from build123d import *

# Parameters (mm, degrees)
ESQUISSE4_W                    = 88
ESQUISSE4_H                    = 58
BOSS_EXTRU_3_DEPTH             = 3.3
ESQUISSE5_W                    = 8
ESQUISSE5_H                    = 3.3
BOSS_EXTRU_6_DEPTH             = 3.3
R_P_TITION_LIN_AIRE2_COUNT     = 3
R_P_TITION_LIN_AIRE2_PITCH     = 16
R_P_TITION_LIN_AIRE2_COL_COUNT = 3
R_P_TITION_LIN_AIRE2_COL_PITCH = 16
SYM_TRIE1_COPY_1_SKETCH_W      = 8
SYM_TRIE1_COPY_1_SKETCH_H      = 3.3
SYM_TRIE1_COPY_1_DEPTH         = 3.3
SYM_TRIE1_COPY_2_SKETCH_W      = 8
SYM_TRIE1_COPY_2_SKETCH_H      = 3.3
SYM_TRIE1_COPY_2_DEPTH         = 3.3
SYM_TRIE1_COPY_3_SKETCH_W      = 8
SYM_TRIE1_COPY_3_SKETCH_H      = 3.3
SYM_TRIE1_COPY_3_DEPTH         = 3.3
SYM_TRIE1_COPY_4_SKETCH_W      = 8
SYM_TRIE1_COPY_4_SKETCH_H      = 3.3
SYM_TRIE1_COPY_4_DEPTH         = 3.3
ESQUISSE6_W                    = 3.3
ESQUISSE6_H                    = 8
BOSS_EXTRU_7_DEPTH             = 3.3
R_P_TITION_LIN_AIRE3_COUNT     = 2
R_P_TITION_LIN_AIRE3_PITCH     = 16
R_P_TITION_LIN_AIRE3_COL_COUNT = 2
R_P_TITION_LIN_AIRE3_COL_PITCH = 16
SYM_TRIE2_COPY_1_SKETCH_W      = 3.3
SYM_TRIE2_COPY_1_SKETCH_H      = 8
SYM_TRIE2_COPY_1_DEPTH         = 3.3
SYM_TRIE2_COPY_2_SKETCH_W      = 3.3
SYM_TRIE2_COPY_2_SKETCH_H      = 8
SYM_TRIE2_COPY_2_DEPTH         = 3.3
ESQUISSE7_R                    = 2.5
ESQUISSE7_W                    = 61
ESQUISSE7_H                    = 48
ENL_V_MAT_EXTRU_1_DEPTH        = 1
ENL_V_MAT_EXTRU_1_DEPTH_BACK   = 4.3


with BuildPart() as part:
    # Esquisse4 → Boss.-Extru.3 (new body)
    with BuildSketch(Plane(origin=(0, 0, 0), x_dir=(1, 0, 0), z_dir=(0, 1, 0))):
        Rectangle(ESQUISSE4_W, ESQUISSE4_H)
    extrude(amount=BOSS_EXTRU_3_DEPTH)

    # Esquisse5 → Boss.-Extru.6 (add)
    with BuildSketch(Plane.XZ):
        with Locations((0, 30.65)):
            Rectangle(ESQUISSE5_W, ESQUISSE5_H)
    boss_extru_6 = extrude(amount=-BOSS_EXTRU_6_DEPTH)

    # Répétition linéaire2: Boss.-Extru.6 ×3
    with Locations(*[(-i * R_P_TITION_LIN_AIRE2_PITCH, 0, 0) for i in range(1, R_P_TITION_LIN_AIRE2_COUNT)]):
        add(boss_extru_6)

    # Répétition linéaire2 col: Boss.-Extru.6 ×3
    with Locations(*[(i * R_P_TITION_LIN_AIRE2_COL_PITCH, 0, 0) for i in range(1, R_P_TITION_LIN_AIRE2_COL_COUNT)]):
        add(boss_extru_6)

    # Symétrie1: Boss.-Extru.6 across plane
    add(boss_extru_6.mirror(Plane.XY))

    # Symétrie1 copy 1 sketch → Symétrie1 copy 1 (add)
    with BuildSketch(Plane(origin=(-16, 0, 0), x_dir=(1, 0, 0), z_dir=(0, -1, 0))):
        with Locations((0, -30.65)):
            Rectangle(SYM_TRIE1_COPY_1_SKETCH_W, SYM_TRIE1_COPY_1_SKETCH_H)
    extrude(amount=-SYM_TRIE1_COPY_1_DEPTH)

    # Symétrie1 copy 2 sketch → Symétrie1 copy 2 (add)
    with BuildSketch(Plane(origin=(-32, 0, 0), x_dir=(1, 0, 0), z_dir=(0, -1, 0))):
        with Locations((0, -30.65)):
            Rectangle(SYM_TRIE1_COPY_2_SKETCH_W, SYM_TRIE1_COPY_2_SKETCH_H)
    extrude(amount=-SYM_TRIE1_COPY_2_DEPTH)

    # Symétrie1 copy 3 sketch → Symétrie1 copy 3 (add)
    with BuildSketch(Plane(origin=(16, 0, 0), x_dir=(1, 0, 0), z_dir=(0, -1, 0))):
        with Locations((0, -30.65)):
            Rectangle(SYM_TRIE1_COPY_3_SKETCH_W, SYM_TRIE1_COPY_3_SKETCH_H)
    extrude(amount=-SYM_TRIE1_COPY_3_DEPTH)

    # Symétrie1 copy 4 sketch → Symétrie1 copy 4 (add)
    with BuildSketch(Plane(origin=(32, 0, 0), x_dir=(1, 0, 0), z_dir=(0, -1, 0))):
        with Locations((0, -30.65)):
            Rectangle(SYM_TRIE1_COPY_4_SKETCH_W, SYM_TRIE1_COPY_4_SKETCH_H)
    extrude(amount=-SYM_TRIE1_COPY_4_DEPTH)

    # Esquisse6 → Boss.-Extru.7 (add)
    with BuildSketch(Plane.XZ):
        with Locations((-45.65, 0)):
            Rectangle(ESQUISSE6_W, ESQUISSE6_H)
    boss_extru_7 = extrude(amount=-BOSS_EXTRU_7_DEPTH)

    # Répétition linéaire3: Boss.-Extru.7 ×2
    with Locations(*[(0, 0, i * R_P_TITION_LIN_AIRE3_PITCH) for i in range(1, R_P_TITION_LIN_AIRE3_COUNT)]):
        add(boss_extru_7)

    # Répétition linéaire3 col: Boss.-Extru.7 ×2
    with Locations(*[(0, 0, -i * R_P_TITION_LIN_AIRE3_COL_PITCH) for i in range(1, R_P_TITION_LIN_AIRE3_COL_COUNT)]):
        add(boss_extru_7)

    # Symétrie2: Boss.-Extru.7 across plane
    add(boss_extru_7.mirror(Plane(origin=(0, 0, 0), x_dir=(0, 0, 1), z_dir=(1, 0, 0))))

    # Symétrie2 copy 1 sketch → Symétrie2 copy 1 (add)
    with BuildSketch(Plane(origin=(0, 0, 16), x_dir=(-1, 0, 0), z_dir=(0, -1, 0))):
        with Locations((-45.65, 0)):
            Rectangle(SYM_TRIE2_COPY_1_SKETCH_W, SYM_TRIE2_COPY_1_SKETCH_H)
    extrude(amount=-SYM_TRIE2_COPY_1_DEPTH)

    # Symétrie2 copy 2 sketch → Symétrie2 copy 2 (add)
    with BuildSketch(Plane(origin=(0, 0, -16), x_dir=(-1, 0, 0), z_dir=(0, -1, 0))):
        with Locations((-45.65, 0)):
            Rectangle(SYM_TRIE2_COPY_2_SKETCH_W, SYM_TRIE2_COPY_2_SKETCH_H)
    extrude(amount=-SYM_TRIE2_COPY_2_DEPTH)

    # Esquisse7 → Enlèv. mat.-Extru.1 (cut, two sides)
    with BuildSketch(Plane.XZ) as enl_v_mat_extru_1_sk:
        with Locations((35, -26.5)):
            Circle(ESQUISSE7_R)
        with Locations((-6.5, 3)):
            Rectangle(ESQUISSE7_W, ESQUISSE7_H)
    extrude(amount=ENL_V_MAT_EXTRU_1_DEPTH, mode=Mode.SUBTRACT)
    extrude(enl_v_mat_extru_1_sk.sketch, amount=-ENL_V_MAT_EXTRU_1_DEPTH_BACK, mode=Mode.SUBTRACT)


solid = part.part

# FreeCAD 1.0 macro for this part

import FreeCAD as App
import Part
import Sketcher
Q = App.Units.Quantity


def add_polygon(sketch, points):
    """Adds a closed chain of lines whose ends are joined by coincident constraints."""
    first, n = sketch.GeometryCount, len(points)
    for a, b in zip(points, points[1:] + points[:1]):
        sketch.addGeometry(Part.LineSegment(App.Vector(*a, 0), App.Vector(*b, 0)), False)
    for i in range(n):
        sketch.addConstraint(Sketcher.Constraint("Coincident", first + i, 2, first + (i + 1) % n, 1))

doc = App.newDocument("Part")
body = doc.addObject("PartDesign::Body", "Body")

# Sketch on XZ plane
sketch1 = body.newObject("Sketcher::SketchObject", "Sketch")
sketch1.AttachmentSupport = (doc.getObject("XZ_Plane"), [""])
sketch1.MapMode = "FlatFace"
add_polygon(sketch1, [(-44, -29), (-44, 29), (44, 29), (44, -29)])  # lines 0-3
sketch1.addConstraint(Sketcher.Constraint("Vertical", 0))
sketch1.addConstraint(Sketcher.Constraint("Horizontal", 1))
sketch1.addConstraint(Sketcher.Constraint("Vertical", 2))
sketch1.addConstraint(Sketcher.Constraint("Horizontal", 3))
sketch1.addConstraint(Sketcher.Constraint("Symmetric", 0, 2, 2, 2, -1, 1))
sketch1.addConstraint(Sketcher.Constraint("DistanceX", 1, 1, 1, 2, Q("88 mm")))
sketch1.addConstraint(Sketcher.Constraint("DistanceY", 0, 1, 0, 2, Q("58 mm")))
pad1 = body.newObject("PartDesign::Pad", "Pad")
pad1.Profile = sketch1
pad1.Length = 3.3
pad1.Reversed = True

# Sketch on XZ plane
sketch2 = body.newObject("Sketcher::SketchObject", "Sketch001")
sketch2.AttachmentSupport = (doc.getObject("XZ_Plane"), [""])
sketch2.MapMode = "FlatFace"
add_polygon(sketch2, [(-4, 32.3), (-4, 29), (4, 29), (4, 32.3)])  # lines 0-3
sketch2.addConstraint(Sketcher.Constraint("Vertical", 0))
sketch2.addConstraint(Sketcher.Constraint("Horizontal", 1))
sketch2.addConstraint(Sketcher.Constraint("Vertical", 2))
sketch2.addConstraint(Sketcher.Constraint("Horizontal", 3))
sketch2.addConstraint(Sketcher.Constraint("DistanceX", 1, 1, 1, 2, Q("8 mm")))
sketch2.addConstraint(Sketcher.Constraint("DistanceY", 0, 2, 0, 1, Q("3.3 mm")))
sketch2.addConstraint(Sketcher.Constraint("DistanceX", 0, 2, -1, 1, Q("4 mm")))
sketch2.addConstraint(Sketcher.Constraint("DistanceY", -1, 1, 0, 2, Q("29 mm")))
pad2 = body.newObject("PartDesign::Pad", "Pad001")
pad2.Profile = sketch2
pad2.Length = 3.3
pad2.Reversed = True
doc.recompute()

linearpattern = body.newObject("PartDesign::LinearPattern", "LinearPattern")
linearpattern.Originals = [pad2]
linearpattern.Direction = (doc.getObject("X_Axis"), [""])
linearpattern.Mode = "offset"
linearpattern.Offset = 16
linearpattern.Occurrences = 3
linearpattern.Reversed = True
body.Tip = linearpattern
doc.recompute()

linearpattern2 = body.newObject("PartDesign::LinearPattern", "LinearPattern001")
linearpattern2.Originals = [pad2]
linearpattern2.Direction = (doc.getObject("X_Axis"), [""])
linearpattern2.Mode = "offset"
linearpattern2.Offset = 16
linearpattern2.Occurrences = 3
body.Tip = linearpattern2
doc.recompute()

mirrored = body.newObject("PartDesign::Mirrored", "Mirrored")
mirrored.Originals = [pad2]
mirrored.MirrorPlane = (doc.getObject("XY_Plane"), [""])
body.Tip = mirrored

# Sketch on XZ plane
sketch3 = body.newObject("Sketcher::SketchObject", "Sketch002")
sketch3.AttachmentSupport = (doc.getObject("XZ_Plane"), [""])
sketch3.MapMode = "FlatFace"
add_polygon(sketch3, [(-20, -29), (-20, -32.3), (-12, -32.3), (-12, -29)])  # lines 0-3
sketch3.addConstraint(Sketcher.Constraint("Vertical", 0))
sketch3.addConstraint(Sketcher.Constraint("Horizontal", 1))
sketch3.addConstraint(Sketcher.Constraint("Vertical", 2))
sketch3.addConstraint(Sketcher.Constraint("Horizontal", 3))
sketch3.addConstraint(Sketcher.Constraint("DistanceX", 1, 1, 1, 2, Q("8 mm")))
sketch3.addConstraint(Sketcher.Constraint("DistanceY", 0, 2, 0, 1, Q("3.3 mm")))
sketch3.addConstraint(Sketcher.Constraint("DistanceX", 0, 2, -1, 1, Q("20 mm")))
sketch3.addConstraint(Sketcher.Constraint("DistanceY", 2, 2, -1, 1, Q("29 mm")))
pad3 = body.newObject("PartDesign::Pad", "Pad002")
pad3.Profile = sketch3
pad3.Length = 3.3
pad3.Reversed = True

# Sketch on XZ plane
sketch4 = body.newObject("Sketcher::SketchObject", "Sketch003")
sketch4.AttachmentSupport = (doc.getObject("XZ_Plane"), [""])
sketch4.MapMode = "FlatFace"
add_polygon(sketch4, [(-36, -29), (-36, -32.3), (-28, -32.3), (-28, -29)])  # lines 0-3
sketch4.addConstraint(Sketcher.Constraint("Vertical", 0))
sketch4.addConstraint(Sketcher.Constraint("Horizontal", 1))
sketch4.addConstraint(Sketcher.Constraint("Vertical", 2))
sketch4.addConstraint(Sketcher.Constraint("Horizontal", 3))
sketch4.addConstraint(Sketcher.Constraint("DistanceX", 1, 1, 1, 2, Q("8 mm")))
sketch4.addConstraint(Sketcher.Constraint("DistanceY", 0, 2, 0, 1, Q("3.3 mm")))
sketch4.addConstraint(Sketcher.Constraint("DistanceX", 0, 2, -1, 1, Q("36 mm")))
sketch4.addConstraint(Sketcher.Constraint("DistanceY", 2, 2, -1, 1, Q("29 mm")))
pad4 = body.newObject("PartDesign::Pad", "Pad003")
pad4.Profile = sketch4
pad4.Length = 3.3
pad4.Reversed = True

# Sketch on XZ plane
sketch5 = body.newObject("Sketcher::SketchObject", "Sketch004")
sketch5.AttachmentSupport = (doc.getObject("XZ_Plane"), [""])
sketch5.MapMode = "FlatFace"
add_polygon(sketch5, [(12, -29), (12, -32.3), (20, -32.3), (20, -29)])  # lines 0-3
sketch5.addConstraint(Sketcher.Constraint("Vertical", 0))
sketch5.addConstraint(Sketcher.Constraint("Horizontal", 1))
sketch5.addConstraint(Sketcher.Constraint("Vertical", 2))
sketch5.addConstraint(Sketcher.Constraint("Horizontal", 3))
sketch5.addConstraint(Sketcher.Constraint("DistanceX", 1, 1, 1, 2, Q("8 mm")))
sketch5.addConstraint(Sketcher.Constraint("DistanceY", 0, 2, 0, 1, Q("3.3 mm")))
sketch5.addConstraint(Sketcher.Constraint("DistanceX", -1, 1, 0, 2, Q("12 mm")))
sketch5.addConstraint(Sketcher.Constraint("DistanceY", 2, 2, -1, 1, Q("29 mm")))
pad5 = body.newObject("PartDesign::Pad", "Pad004")
pad5.Profile = sketch5
pad5.Length = 3.3
pad5.Reversed = True

# Sketch on XZ plane
sketch6 = body.newObject("Sketcher::SketchObject", "Sketch005")
sketch6.AttachmentSupport = (doc.getObject("XZ_Plane"), [""])
sketch6.MapMode = "FlatFace"
add_polygon(sketch6, [(28, -29), (28, -32.3), (36, -32.3), (36, -29)])  # lines 0-3
sketch6.addConstraint(Sketcher.Constraint("Vertical", 0))
sketch6.addConstraint(Sketcher.Constraint("Horizontal", 1))
sketch6.addConstraint(Sketcher.Constraint("Vertical", 2))
sketch6.addConstraint(Sketcher.Constraint("Horizontal", 3))
sketch6.addConstraint(Sketcher.Constraint("DistanceX", 1, 1, 1, 2, Q("8 mm")))
sketch6.addConstraint(Sketcher.Constraint("DistanceY", 0, 2, 0, 1, Q("3.3 mm")))
sketch6.addConstraint(Sketcher.Constraint("DistanceX", -1, 1, 0, 2, Q("28 mm")))
sketch6.addConstraint(Sketcher.Constraint("DistanceY", 2, 2, -1, 1, Q("29 mm")))
pad6 = body.newObject("PartDesign::Pad", "Pad005")
pad6.Profile = sketch6
pad6.Length = 3.3
pad6.Reversed = True

# Sketch on XZ plane
sketch7 = body.newObject("Sketcher::SketchObject", "Sketch006")
sketch7.AttachmentSupport = (doc.getObject("XZ_Plane"), [""])
sketch7.MapMode = "FlatFace"
add_polygon(sketch7, [(-47.3, 4), (-47.3, -4), (-44, -4), (-44, 4)])  # lines 0-3
sketch7.addConstraint(Sketcher.Constraint("Vertical", 0))
sketch7.addConstraint(Sketcher.Constraint("Horizontal", 1))
sketch7.addConstraint(Sketcher.Constraint("Vertical", 2))
sketch7.addConstraint(Sketcher.Constraint("Horizontal", 3))
sketch7.addConstraint(Sketcher.Constraint("DistanceY", 0, 2, 0, 1, Q("8 mm")))
sketch7.addConstraint(Sketcher.Constraint("DistanceX", 1, 1, 1, 2, Q("3.3 mm")))
sketch7.addConstraint(Sketcher.Constraint("DistanceY", 0, 2, -1, 1, Q("4 mm")))
sketch7.addConstraint(Sketcher.Constraint("DistanceX", 1, 2, -1, 1, Q("44 mm")))
pad7 = body.newObject("PartDesign::Pad", "Pad006")
pad7.Profile = sketch7
pad7.Length = 3.3
pad7.Reversed = True
doc.recompute()

linearpattern3 = body.newObject("PartDesign::LinearPattern", "LinearPattern002")
linearpattern3.Originals = [pad7]
linearpattern3.Direction = (doc.getObject("Z_Axis"), [""])
linearpattern3.Mode = "offset"
linearpattern3.Offset = 16
linearpattern3.Occurrences = 2
body.Tip = linearpattern3
doc.recompute()

linearpattern4 = body.newObject("PartDesign::LinearPattern", "LinearPattern003")
linearpattern4.Originals = [pad7]
linearpattern4.Direction = (doc.getObject("Z_Axis"), [""])
linearpattern4.Mode = "offset"
linearpattern4.Offset = 16
linearpattern4.Occurrences = 2
linearpattern4.Reversed = True
body.Tip = linearpattern4
doc.recompute()

mirrored2 = body.newObject("PartDesign::Mirrored", "Mirrored001")
mirrored2.Originals = [pad7]
mirrored2.MirrorPlane = (doc.getObject("YZ_Plane"), [""])
body.Tip = mirrored2

# Sketch on XZ plane
sketch8 = body.newObject("Sketcher::SketchObject", "Sketch007")
sketch8.AttachmentSupport = (doc.getObject("XZ_Plane"), [""])
sketch8.MapMode = "FlatFace"
add_polygon(sketch8, [(47.3, 12), (47.3, 20), (44, 20), (44, 12)])  # lines 0-3
sketch8.addConstraint(Sketcher.Constraint("Vertical", 0))
sketch8.addConstraint(Sketcher.Constraint("Horizontal", 1))
sketch8.addConstraint(Sketcher.Constraint("Vertical", 2))
sketch8.addConstraint(Sketcher.Constraint("Horizontal", 3))
sketch8.addConstraint(Sketcher.Constraint("DistanceY", 0, 1, 0, 2, Q("8 mm")))
sketch8.addConstraint(Sketcher.Constraint("DistanceX", 1, 2, 1, 1, Q("3.3 mm")))
sketch8.addConstraint(Sketcher.Constraint("DistanceY", -1, 1, 0, 2, Q("20 mm")))
sketch8.addConstraint(Sketcher.Constraint("DistanceX", -1, 1, 1, 2, Q("44 mm")))
pad8 = body.newObject("PartDesign::Pad", "Pad007")
pad8.Profile = sketch8
pad8.Length = 3.3
pad8.Reversed = True

# Sketch on XZ plane
sketch9 = body.newObject("Sketcher::SketchObject", "Sketch008")
sketch9.AttachmentSupport = (doc.getObject("XZ_Plane"), [""])
sketch9.MapMode = "FlatFace"
add_polygon(sketch9, [(47.3, -20), (47.3, -12), (44, -12), (44, -20)])  # lines 0-3
sketch9.addConstraint(Sketcher.Constraint("Vertical", 0))
sketch9.addConstraint(Sketcher.Constraint("Horizontal", 1))
sketch9.addConstraint(Sketcher.Constraint("Vertical", 2))
sketch9.addConstraint(Sketcher.Constraint("Horizontal", 3))
sketch9.addConstraint(Sketcher.Constraint("DistanceY", 0, 1, 0, 2, Q("8 mm")))
sketch9.addConstraint(Sketcher.Constraint("DistanceX", 1, 2, 1, 1, Q("3.3 mm")))
sketch9.addConstraint(Sketcher.Constraint("DistanceY", 0, 2, -1, 1, Q("12 mm")))
sketch9.addConstraint(Sketcher.Constraint("DistanceX", -1, 1, 1, 2, Q("44 mm")))
pad9 = body.newObject("PartDesign::Pad", "Pad008")
pad9.Profile = sketch9
pad9.Length = 3.3
pad9.Reversed = True

# Sketch on XZ plane
sketch10 = body.newObject("Sketcher::SketchObject", "Sketch009")
sketch10.AttachmentSupport = (doc.getObject("XZ_Plane"), [""])
sketch10.MapMode = "FlatFace"
sketch10.addGeometry(Part.Circle(App.Vector(35, -26.5, 0), App.Vector(0, 0, 1), 2.5), False)  # 0
add_polygon(sketch10, [(-37, 27), (-37, -21), (24, -21), (24, 27)])  # lines 1-4
sketch10.addConstraint(Sketcher.Constraint("Vertical", 1))
sketch10.addConstraint(Sketcher.Constraint("Horizontal", 2))
sketch10.addConstraint(Sketcher.Constraint("Vertical", 3))
sketch10.addConstraint(Sketcher.Constraint("Horizontal", 4))
sketch10.addConstraint(Sketcher.Constraint("Diameter", 0, Q("5 mm")))
sketch10.addConstraint(Sketcher.Constraint("DistanceX", 2, 1, 2, 2, Q("61 mm")))
sketch10.addConstraint(Sketcher.Constraint("DistanceY", 1, 2, 1, 1, Q("48 mm")))
sketch10.addConstraint(Sketcher.Constraint("DistanceX", -1, 1, 0, 3, Q("35 mm")))
sketch10.addConstraint(Sketcher.Constraint("DistanceX", 1, 2, -1, 1, Q("37 mm")))
sketch10.addConstraint(Sketcher.Constraint("DistanceY", 1, 2, -1, 1, Q("21 mm")))
sketch10.addConstraint(Sketcher.Constraint("DistanceY", 0, 3, -1, 1, Q("26.5 mm")))
pocket1 = body.newObject("PartDesign::Pocket", "Pocket")
pocket1.Profile = sketch10
pocket1.Type = "ThroughAll"
pocket1.Midplane = True

doc.recompute()
